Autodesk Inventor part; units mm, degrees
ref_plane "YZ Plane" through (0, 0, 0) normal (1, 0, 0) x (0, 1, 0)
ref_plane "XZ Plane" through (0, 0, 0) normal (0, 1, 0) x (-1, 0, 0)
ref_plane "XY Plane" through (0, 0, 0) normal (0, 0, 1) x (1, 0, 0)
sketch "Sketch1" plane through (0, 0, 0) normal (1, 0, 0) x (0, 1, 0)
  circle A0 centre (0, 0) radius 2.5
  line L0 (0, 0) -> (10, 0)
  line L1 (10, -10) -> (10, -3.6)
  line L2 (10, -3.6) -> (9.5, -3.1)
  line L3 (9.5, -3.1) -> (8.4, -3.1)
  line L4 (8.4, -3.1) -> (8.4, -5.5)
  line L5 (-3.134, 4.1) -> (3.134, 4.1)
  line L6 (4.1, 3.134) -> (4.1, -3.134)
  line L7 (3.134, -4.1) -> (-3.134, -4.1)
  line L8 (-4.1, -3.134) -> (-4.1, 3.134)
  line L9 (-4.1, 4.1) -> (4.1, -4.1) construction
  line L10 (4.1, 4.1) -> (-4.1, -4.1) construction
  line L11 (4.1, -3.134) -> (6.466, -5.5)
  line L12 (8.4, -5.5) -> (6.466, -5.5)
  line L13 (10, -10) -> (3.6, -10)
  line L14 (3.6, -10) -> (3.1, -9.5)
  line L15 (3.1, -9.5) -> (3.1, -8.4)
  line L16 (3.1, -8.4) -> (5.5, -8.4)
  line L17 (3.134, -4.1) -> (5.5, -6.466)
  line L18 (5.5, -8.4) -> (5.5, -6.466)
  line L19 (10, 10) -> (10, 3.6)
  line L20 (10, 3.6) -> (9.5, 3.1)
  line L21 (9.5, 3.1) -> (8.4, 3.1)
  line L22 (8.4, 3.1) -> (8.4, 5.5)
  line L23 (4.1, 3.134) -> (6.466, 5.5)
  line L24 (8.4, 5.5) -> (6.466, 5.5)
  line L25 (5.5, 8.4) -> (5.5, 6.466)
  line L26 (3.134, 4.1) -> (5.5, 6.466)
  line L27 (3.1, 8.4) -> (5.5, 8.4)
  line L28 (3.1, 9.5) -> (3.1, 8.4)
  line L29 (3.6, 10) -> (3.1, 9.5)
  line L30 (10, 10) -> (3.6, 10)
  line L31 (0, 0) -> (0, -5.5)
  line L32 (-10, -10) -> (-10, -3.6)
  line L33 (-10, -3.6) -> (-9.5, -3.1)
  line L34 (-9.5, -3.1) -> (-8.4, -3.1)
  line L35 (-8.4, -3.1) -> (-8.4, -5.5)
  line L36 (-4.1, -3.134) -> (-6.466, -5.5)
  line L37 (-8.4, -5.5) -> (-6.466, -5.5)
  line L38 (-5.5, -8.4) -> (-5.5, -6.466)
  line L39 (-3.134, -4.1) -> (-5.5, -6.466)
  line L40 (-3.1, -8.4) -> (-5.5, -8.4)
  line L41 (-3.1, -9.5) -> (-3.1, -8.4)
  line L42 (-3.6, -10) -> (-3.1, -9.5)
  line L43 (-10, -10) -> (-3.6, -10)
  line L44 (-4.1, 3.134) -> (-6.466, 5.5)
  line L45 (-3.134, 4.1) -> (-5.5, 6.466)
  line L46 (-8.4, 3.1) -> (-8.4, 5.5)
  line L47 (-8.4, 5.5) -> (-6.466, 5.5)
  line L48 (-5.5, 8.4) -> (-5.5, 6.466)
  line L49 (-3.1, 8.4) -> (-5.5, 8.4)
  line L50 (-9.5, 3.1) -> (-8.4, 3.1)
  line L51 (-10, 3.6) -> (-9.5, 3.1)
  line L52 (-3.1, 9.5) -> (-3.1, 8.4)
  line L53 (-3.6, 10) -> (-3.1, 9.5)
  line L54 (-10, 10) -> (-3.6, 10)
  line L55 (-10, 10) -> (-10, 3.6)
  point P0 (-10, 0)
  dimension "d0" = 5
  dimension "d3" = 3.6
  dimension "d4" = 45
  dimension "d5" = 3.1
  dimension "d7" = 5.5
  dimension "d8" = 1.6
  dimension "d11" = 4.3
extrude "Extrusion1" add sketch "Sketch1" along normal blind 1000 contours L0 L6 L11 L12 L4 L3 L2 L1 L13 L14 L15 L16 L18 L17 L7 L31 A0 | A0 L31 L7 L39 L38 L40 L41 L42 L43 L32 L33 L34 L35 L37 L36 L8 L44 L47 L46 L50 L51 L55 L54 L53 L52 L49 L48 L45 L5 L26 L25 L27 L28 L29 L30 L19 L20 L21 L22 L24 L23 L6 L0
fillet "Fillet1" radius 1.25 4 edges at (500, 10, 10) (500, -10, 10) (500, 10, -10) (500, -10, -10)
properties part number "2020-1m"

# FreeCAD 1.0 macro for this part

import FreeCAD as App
import Part
import Sketcher

V = App.Vector


def edges_at(feature, points):
    """Names of the edges that pass closest to the given points."""
    edges = feature.Shape.Edges
    near = lambda p: min(range(len(edges)), key=lambda i: edges[i].distToShape(Part.Vertex(*p))[0])
    return sorted({f"Edge{near(p) + 1}" for p in points})

doc = App.newDocument("Part")
body = doc.addObject("PartDesign::Body", "Body")

sketch1 = body.newObject("Sketcher::SketchObject", "Sketch")
sketch1.AttachmentSupport = (doc.getObject("YZ_Plane"), [""])
sketch1.MapMode = "FlatFace"
sketch1.addGeometry(Part.LineSegment(V(4.1, -3.1, 0), V(4.1, 3.1, 0)), False)
sketch1.addGeometry(Part.LineSegment(V(4.1, 3.1, 0), V(6.5, 5.5, 0)), False)
sketch1.addGeometry(Part.LineSegment(V(6.5, 5.5, 0), V(8.4, 5.5, 0)), False)
sketch1.addGeometry(Part.LineSegment(V(8.4, 5.5, 0), V(8.4, 3.1, 0)), False)
sketch1.addGeometry(Part.LineSegment(V(8.4, 3.1, 0), V(9.5, 3.1, 0)), False)
sketch1.addGeometry(Part.LineSegment(V(9.5, 3.1, 0), V(10, 3.6, 0)), False)
sketch1.addGeometry(Part.LineSegment(V(10, 3.6, 0), V(10, 10, 0)), False)
sketch1.addGeometry(Part.LineSegment(V(10, 10, 0), V(3.6, 10, 0)), False)
sketch1.addGeometry(Part.LineSegment(V(3.6, 10, 0), V(3.1, 9.5, 0)), False)
sketch1.addGeometry(Part.LineSegment(V(3.1, 9.5, 0), V(3.1, 8.4, 0)), False)
sketch1.addGeometry(Part.LineSegment(V(3.1, 8.4, 0), V(5.5, 8.4, 0)), False)
sketch1.addGeometry(Part.LineSegment(V(5.5, 8.4, 0), V(5.5, 6.5, 0)), False)
sketch1.addGeometry(Part.LineSegment(V(5.5, 6.5, 0), V(3.1, 4.1, 0)), False)
sketch1.addGeometry(Part.LineSegment(V(3.1, 4.1, 0), V(-3.1, 4.1, 0)), False)
sketch1.addGeometry(Part.LineSegment(V(-3.1, 4.1, 0), V(-5.5, 6.5, 0)), False)
sketch1.addGeometry(Part.LineSegment(V(-5.5, 6.5, 0), V(-5.5, 8.4, 0)), False)
sketch1.addGeometry(Part.LineSegment(V(-5.5, 8.4, 0), V(-3.1, 8.4, 0)), False)
sketch1.addGeometry(Part.LineSegment(V(-3.1, 8.4, 0), V(-3.1, 9.5, 0)), False)
sketch1.addGeometry(Part.LineSegment(V(-3.1, 9.5, 0), V(-3.6, 10, 0)), False)
sketch1.addGeometry(Part.LineSegment(V(-3.6, 10, 0), V(-10, 10, 0)), False)
sketch1.addGeometry(Part.LineSegment(V(-10, 10, 0), V(-10, 3.6, 0)), False)
sketch1.addGeometry(Part.LineSegment(V(-10, 3.6, 0), V(-9.5, 3.1, 0)), False)
sketch1.addGeometry(Part.LineSegment(V(-9.5, 3.1, 0), V(-8.4, 3.1, 0)), False)
sketch1.addGeometry(Part.LineSegment(V(-8.4, 3.1, 0), V(-8.4, 5.5, 0)), False)
sketch1.addGeometry(Part.LineSegment(V(-8.4, 5.5, 0), V(-6.5, 5.5, 0)), False)
sketch1.addGeometry(Part.LineSegment(V(-6.5, 5.5, 0), V(-4.1, 3.1, 0)), False)
sketch1.addGeometry(Part.LineSegment(V(-4.1, 3.1, 0), V(-4.1, -3.1, 0)), False)
sketch1.addGeometry(Part.LineSegment(V(-4.1, -3.1, 0), V(-6.5, -5.5, 0)), False)
sketch1.addGeometry(Part.LineSegment(V(-6.5, -5.5, 0), V(-8.4, -5.5, 0)), False)
sketch1.addGeometry(Part.LineSegment(V(-8.4, -5.5, 0), V(-8.4, -3.1, 0)), False)
sketch1.addGeometry(Part.LineSegment(V(-8.4, -3.1, 0), V(-9.5, -3.1, 0)), False)
sketch1.addGeometry(Part.LineSegment(V(-9.5, -3.1, 0), V(-10, -3.6, 0)), False)
sketch1.addGeometry(Part.LineSegment(V(-10, -3.6, 0), V(-10, -10, 0)), False)
sketch1.addGeometry(Part.LineSegment(V(-10, -10, 0), V(-3.6, -10, 0)), False)
sketch1.addGeometry(Part.LineSegment(V(-3.6, -10, 0), V(-3.1, -9.5, 0)), False)
sketch1.addGeometry(Part.LineSegment(V(-3.1, -9.5, 0), V(-3.1, -8.4, 0)), False)
sketch1.addGeometry(Part.LineSegment(V(-3.1, -8.4, 0), V(-5.5, -8.4, 0)), False)
sketch1.addGeometry(Part.LineSegment(V(-5.5, -8.4, 0), V(-5.5, -6.5, 0)), False)
sketch1.addGeometry(Part.LineSegment(V(-5.5, -6.5, 0), V(-3.1, -4.1, 0)), False)
sketch1.addGeometry(Part.LineSegment(V(-3.1, -4.1, 0), V(3.1, -4.1, 0)), False)
sketch1.addGeometry(Part.LineSegment(V(3.1, -4.1, 0), V(5.5, -6.5, 0)), False)
sketch1.addGeometry(Part.LineSegment(V(5.5, -6.5, 0), V(5.5, -8.4, 0)), False)
sketch1.addGeometry(Part.LineSegment(V(5.5, -8.4, 0), V(3.1, -8.4, 0)), False)
sketch1.addGeometry(Part.LineSegment(V(3.1, -8.4, 0), V(3.1, -9.5, 0)), False)
sketch1.addGeometry(Part.LineSegment(V(3.1, -9.5, 0), V(3.6, -10, 0)), False)
sketch1.addGeometry(Part.LineSegment(V(3.6, -10, 0), V(10, -10, 0)), False)
sketch1.addGeometry(Part.LineSegment(V(10, -10, 0), V(10, -3.6, 0)), False)
sketch1.addGeometry(Part.LineSegment(V(10, -3.6, 0), V(9.5, -3.1, 0)), False)
sketch1.addGeometry(Part.LineSegment(V(9.5, -3.1, 0), V(8.4, -3.1, 0)), False)
sketch1.addGeometry(Part.LineSegment(V(8.4, -3.1, 0), V(8.4, -5.5, 0)), False)
sketch1.addGeometry(Part.LineSegment(V(8.4, -5.5, 0), V(6.5, -5.5, 0)), False)
sketch1.addGeometry(Part.LineSegment(V(6.5, -5.5, 0), V(4.1, -3.1, 0)), False)
sketch1.addGeometry(Part.Circle(V(0, 0, 0), V(0, 0, 1), 2.5), False)
sketch1.addConstraint(Sketcher.Constraint("Coincident", 0, 2, 1, 1))
sketch1.addConstraint(Sketcher.Constraint("Coincident", 1, 2, 2, 1))
sketch1.addConstraint(Sketcher.Constraint("Coincident", 2, 2, 3, 1))
sketch1.addConstraint(Sketcher.Constraint("Coincident", 3, 2, 4, 1))
sketch1.addConstraint(Sketcher.Constraint("Coincident", 4, 2, 5, 1))
sketch1.addConstraint(Sketcher.Constraint("Coincident", 5, 2, 6, 1))
sketch1.addConstraint(Sketcher.Constraint("Coincident", 6, 2, 7, 1))
sketch1.addConstraint(Sketcher.Constraint("Coincident", 7, 2, 8, 1))
sketch1.addConstraint(Sketcher.Constraint("Coincident", 8, 2, 9, 1))
sketch1.addConstraint(Sketcher.Constraint("Coincident", 9, 2, 10, 1))
sketch1.addConstraint(Sketcher.Constraint("Coincident", 10, 2, 11, 1))
sketch1.addConstraint(Sketcher.Constraint("Coincident", 11, 2, 12, 1))
sketch1.addConstraint(Sketcher.Constraint("Coincident", 12, 2, 13, 1))
sketch1.addConstraint(Sketcher.Constraint("Coincident", 13, 2, 14, 1))
sketch1.addConstraint(Sketcher.Constraint("Coincident", 14, 2, 15, 1))
sketch1.addConstraint(Sketcher.Constraint("Coincident", 15, 2, 16, 1))
sketch1.addConstraint(Sketcher.Constraint("Coincident", 16, 2, 17, 1))
sketch1.addConstraint(Sketcher.Constraint("Coincident", 17, 2, 18, 1))
sketch1.addConstraint(Sketcher.Constraint("Coincident", 18, 2, 19, 1))
sketch1.addConstraint(Sketcher.Constraint("Coincident", 19, 2, 20, 1))
sketch1.addConstraint(Sketcher.Constraint("Coincident", 20, 2, 21, 1))
sketch1.addConstraint(Sketcher.Constraint("Coincident", 21, 2, 22, 1))
sketch1.addConstraint(Sketcher.Constraint("Coincident", 22, 2, 23, 1))
sketch1.addConstraint(Sketcher.Constraint("Coincident", 23, 2, 24, 1))
sketch1.addConstraint(Sketcher.Constraint("Coincident", 24, 2, 25, 1))
sketch1.addConstraint(Sketcher.Constraint("Coincident", 25, 2, 26, 1))
sketch1.addConstraint(Sketcher.Constraint("Coincident", 26, 2, 27, 1))
sketch1.addConstraint(Sketcher.Constraint("Coincident", 27, 2, 28, 1))
sketch1.addConstraint(Sketcher.Constraint("Coincident", 28, 2, 29, 1))
sketch1.addConstraint(Sketcher.Constraint("Coincident", 29, 2, 30, 1))
sketch1.addConstraint(Sketcher.Constraint("Coincident", 30, 2, 31, 1))
sketch1.addConstraint(Sketcher.Constraint("Coincident", 31, 2, 32, 1))
sketch1.addConstraint(Sketcher.Constraint("Coincident", 32, 2, 33, 1))
sketch1.addConstraint(Sketcher.Constraint("Coincident", 33, 2, 34, 1))
sketch1.addConstraint(Sketcher.Constraint("Coincident", 34, 2, 35, 1))
sketch1.addConstraint(Sketcher.Constraint("Coincident", 35, 2, 36, 1))
sketch1.addConstraint(Sketcher.Constraint("Coincident", 36, 2, 37, 1))
sketch1.addConstraint(Sketcher.Constraint("Coincident", 37, 2, 38, 1))
sketch1.addConstraint(Sketcher.Constraint("Coincident", 38, 2, 39, 1))
sketch1.addConstraint(Sketcher.Constraint("Coincident", 39, 2, 40, 1))
sketch1.addConstraint(Sketcher.Constraint("Coincident", 40, 2, 41, 1))
sketch1.addConstraint(Sketcher.Constraint("Coincident", 41, 2, 42, 1))
sketch1.addConstraint(Sketcher.Constraint("Coincident", 42, 2, 43, 1))
sketch1.addConstraint(Sketcher.Constraint("Coincident", 43, 2, 44, 1))
sketch1.addConstraint(Sketcher.Constraint("Coincident", 44, 2, 45, 1))
sketch1.addConstraint(Sketcher.Constraint("Coincident", 45, 2, 46, 1))
sketch1.addConstraint(Sketcher.Constraint("Coincident", 46, 2, 47, 1))
sketch1.addConstraint(Sketcher.Constraint("Coincident", 47, 2, 48, 1))
sketch1.addConstraint(Sketcher.Constraint("Coincident", 48, 2, 49, 1))
sketch1.addConstraint(Sketcher.Constraint("Coincident", 49, 2, 50, 1))
sketch1.addConstraint(Sketcher.Constraint("Coincident", 50, 2, 51, 1))
sketch1.addConstraint(Sketcher.Constraint("Coincident", 51, 2, 0, 1))
sketch1.addConstraint(Sketcher.Constraint("Vertical", 0))
sketch1.addConstraint(Sketcher.Constraint("Horizontal", 2))
sketch1.addConstraint(Sketcher.Constraint("Vertical", 3))
sketch1.addConstraint(Sketcher.Constraint("Horizontal", 4))
sketch1.addConstraint(Sketcher.Constraint("Vertical", 6))
sketch1.addConstraint(Sketcher.Constraint("Horizontal", 7))
sketch1.addConstraint(Sketcher.Constraint("Vertical", 9))
sketch1.addConstraint(Sketcher.Constraint("Horizontal", 10))
sketch1.addConstraint(Sketcher.Constraint("Vertical", 11))
sketch1.addConstraint(Sketcher.Constraint("Horizontal", 13))
sketch1.addConstraint(Sketcher.Constraint("Vertical", 15))
sketch1.addConstraint(Sketcher.Constraint("Horizontal", 16))
sketch1.addConstraint(Sketcher.Constraint("Vertical", 17))
sketch1.addConstraint(Sketcher.Constraint("Horizontal", 19))
sketch1.addConstraint(Sketcher.Constraint("Vertical", 20))
sketch1.addConstraint(Sketcher.Constraint("Horizontal", 22))
sketch1.addConstraint(Sketcher.Constraint("Vertical", 23))
sketch1.addConstraint(Sketcher.Constraint("Horizontal", 24))
sketch1.addConstraint(Sketcher.Constraint("Vertical", 26))
sketch1.addConstraint(Sketcher.Constraint("Horizontal", 28))
sketch1.addConstraint(Sketcher.Constraint("Vertical", 29))
sketch1.addConstraint(Sketcher.Constraint("Horizontal", 30))
sketch1.addConstraint(Sketcher.Constraint("Vertical", 32))
sketch1.addConstraint(Sketcher.Constraint("Horizontal", 33))
sketch1.addConstraint(Sketcher.Constraint("Vertical", 35))
sketch1.addConstraint(Sketcher.Constraint("Horizontal", 36))
sketch1.addConstraint(Sketcher.Constraint("Vertical", 37))
sketch1.addConstraint(Sketcher.Constraint("Horizontal", 39))
sketch1.addConstraint(Sketcher.Constraint("Vertical", 41))
sketch1.addConstraint(Sketcher.Constraint("Horizontal", 42))
sketch1.addConstraint(Sketcher.Constraint("Vertical", 43))
sketch1.addConstraint(Sketcher.Constraint("Horizontal", 45))
sketch1.addConstraint(Sketcher.Constraint("Vertical", 46))
sketch1.addConstraint(Sketcher.Constraint("Horizontal", 48))
sketch1.addConstraint(Sketcher.Constraint("Vertical", 49))
sketch1.addConstraint(Sketcher.Constraint("Horizontal", 50))
sketch1.addConstraint(Sketcher.Constraint("Coincident", 52, 3, -1, 1))
sketch1.addConstraint(Sketcher.Constraint("Symmetric", 0, 2, 26, 2, -1, 1))
sketch1.addConstraint(Sketcher.Constraint("Symmetric", 1, 2, 27, 2, -1, 1))
sketch1.addConstraint(Sketcher.Constraint("Symmetric", 3, 2, 29, 2, -1, 1))
sketch1.addConstraint(Sketcher.Constraint("Symmetric", 5, 2, 31, 2, -1, 1))
sketch1.addConstraint(Sketcher.Constraint("Symmetric", 7, 2, 33, 2, -1, 1))
sketch1.addConstraint(Sketcher.Constraint("Symmetric", 8, 2, 34, 2, -1, 1))
sketch1.addConstraint(Sketcher.Constraint("Symmetric", 10, 2, 36, 2, -1, 1))
sketch1.addConstraint(Sketcher.Constraint("Symmetric", 12, 2, 38, 2, -1, 1))
sketch1.addConstraint(Sketcher.Constraint("Symmetric", 14, 2, 40, 2, -1, 1))
sketch1.addConstraint(Sketcher.Constraint("Symmetric", 16, 2, 42, 2, -1, 1))
sketch1.addConstraint(Sketcher.Constraint("Symmetric", 18, 2, 44, 2, -1, 1))
sketch1.addConstraint(Sketcher.Constraint("Symmetric", 20, 2, 46, 2, -1, 1))
sketch1.addConstraint(Sketcher.Constraint("Symmetric", 21, 2, 47, 2, -1, 1))
sketch1.addConstraint(Sketcher.Constraint("Symmetric", 23, 2, 49, 2, -1, 1))
sketch1.addConstraint(Sketcher.Constraint("Symmetric", 11, 2, 14, 2, -2))
sketch1.addConstraint(Sketcher.Constraint("Symmetric", 9, 2, 16, 2, -2))
sketch1.addConstraint(Sketcher.Constraint("Symmetric", 7, 2, 18, 2, -2))
sketch1.addConstraint(Sketcher.Constraint("Symmetric", 5, 2, 20, 2, -2))
sketch1.addConstraint(Sketcher.Constraint("Symmetric", 4, 2, 21, 2, -2))
sketch1.addConstraint(Sketcher.Constraint("Symmetric", 2, 2, 23, 2, -2))
sketch1.addConstraint(Sketcher.Constraint("Parallel", 1, 5))
sketch1.addConstraint(Sketcher.Constraint("Parallel", 5, 8))
sketch1.addConstraint(Sketcher.Constraint("Parallel", 8, 12))
sketch1.addConstraint(Sketcher.Constraint("Perpendicular", 12, 14))
sketch1.addConstraint(Sketcher.Constraint("Parallel", 14, 18))
sketch1.addConstraint(Sketcher.Constraint("Parallel", 18, 21))
sketch1.addConstraint(Sketcher.Constraint("Parallel", 21, 25))
sketch1.addConstraint(Sketcher.Constraint("Parallel", 27, 31))
sketch1.addConstraint(Sketcher.Constraint("Parallel", 34, 38))
sketch1.addConstraint(Sketcher.Constraint("Perpendicular", 38, 40))
sketch1.addConstraint(Sketcher.Constraint("Parallel", 40, 44))
sketch1.addConstraint(Sketcher.Constraint("Parallel", 47, 51))
sketch1.addConstraint(Sketcher.Constraint("Horizontal", 0, 2, 25, 2))
sketch1.addConstraint(Sketcher.Constraint("Horizontal", 26, 2, 51, 2))
sketch1.addConstraint(Sketcher.Constraint("Equal", 39, 0))
sketch1.addConstraint(Sketcher.Constraint("Equal", 42, 3))
sketch1.addConstraint(Sketcher.Constraint("Equal", 45, 6))
sketch1.addConstraint(Sketcher.Constraint("Equal", 48, 9))
sketch1.addConstraint(Sketcher.Constraint("Equal", 50, 11))
sketch1.addConstraint(Sketcher.Constraint("Equal", 5, 8))
sketch1.addConstraint(Sketcher.Constraint("Equal", 1, 12))
sketch1.addConstraint(Sketcher.Constraint("Diameter", 52, 5.0))
sketch1.addConstraint(Sketcher.Constraint("DistanceY", -1, 1, 1, 2, 5.5))
sketch1.addConstraint(Sketcher.Constraint("DistanceY", -1, 1, 3, 2, 3.1))
sketch1.addConstraint(Sketcher.Constraint("DistanceY", -1, 1, 5, 2, 3.6))
sketch1.addConstraint(Sketcher.Constraint("DistanceX", 0, 2, 2, 2, 4.3))
sketch1.addConstraint(Sketcher.Constraint("DistanceX", 3, 2, 5, 2, 1.6))
sketch1.addConstraint(Sketcher.Constraint("DistanceX", 7, 2, 7, 1, 6.4))
sketch1.addConstraint(Sketcher.Constraint("DistanceX", 2, 1, 2, 2, 1.934))
pad1 = body.newObject("PartDesign::Pad", "Pad")
pad1.Profile = sketch1
pad1.Length = 1000
doc.recompute()

fillet = body.newObject("PartDesign::Fillet", "Fillet")
fillet.Base = (pad1, edges_at(pad1, [
    (500, 10, 10),
    (500, -10, 10),
    (500, 10, -10),
    (500, -10, -10),
]))
fillet.Radius = 1.25

doc.recompute()
